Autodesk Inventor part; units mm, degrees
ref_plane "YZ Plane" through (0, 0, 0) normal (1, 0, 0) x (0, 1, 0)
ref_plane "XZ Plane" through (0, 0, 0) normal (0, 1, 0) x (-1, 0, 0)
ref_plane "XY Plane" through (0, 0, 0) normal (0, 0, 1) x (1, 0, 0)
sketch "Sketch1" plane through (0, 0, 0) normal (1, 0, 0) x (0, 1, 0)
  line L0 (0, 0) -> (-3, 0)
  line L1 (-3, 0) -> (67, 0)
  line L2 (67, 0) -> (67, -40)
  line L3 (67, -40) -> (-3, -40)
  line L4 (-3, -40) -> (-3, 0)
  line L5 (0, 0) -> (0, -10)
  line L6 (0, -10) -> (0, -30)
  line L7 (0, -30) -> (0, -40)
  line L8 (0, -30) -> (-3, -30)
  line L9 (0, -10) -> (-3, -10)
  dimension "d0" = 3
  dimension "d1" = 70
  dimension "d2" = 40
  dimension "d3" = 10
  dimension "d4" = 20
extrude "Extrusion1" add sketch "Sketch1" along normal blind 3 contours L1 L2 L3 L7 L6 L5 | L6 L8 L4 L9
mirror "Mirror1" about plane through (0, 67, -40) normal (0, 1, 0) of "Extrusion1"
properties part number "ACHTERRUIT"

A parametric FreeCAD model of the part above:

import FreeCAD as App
import Part
import Sketcher

V = App.Vector
Q = App.Units.Quantity

doc = App.newDocument("Part")
params = doc.addObject("Spreadsheet::Sheet", "Params")
for row, (alias, value) in enumerate([
    ("sketch1_width", "3 mm"),
    ("sketch1_height", "10 mm"),
    ("sketch1_height2", "20 mm"),
    ("pad1_length", "3 mm"),
], start=1):
    params.set(f"A{row}", alias)
    params.set(f"B{row}", "=" + value)
    params.setAlias(f"B{row}", alias)

body = doc.addObject("PartDesign::Body", "Body")

# Sketch on YZ plane
sketch1 = body.newObject("Sketcher::SketchObject", "Sketch")
sketch1.AttachmentSupport = (doc.getObject("YZ_Plane"), [""])
sketch1.MapMode = "FlatFace"
sketch1.addGeometry(Part.LineSegment(V(67, 0, 0), V(0, 0, 0)), False)
sketch1.addGeometry(Part.LineSegment(V(0, 0, 0), V(0, -10, 0)), False)
sketch1.addGeometry(Part.LineSegment(V(0, -10, 0), V(-3, -10, 0)), False)
sketch1.addGeometry(Part.LineSegment(V(-3, -10, 0), V(-3, -30, 0)), False)
sketch1.addGeometry(Part.LineSegment(V(-3, -30, 0), V(0, -30, 0)), False)
sketch1.addGeometry(Part.LineSegment(V(0, -30, 0), V(0, -40, 0)), False)
sketch1.addGeometry(Part.LineSegment(V(0, -40, 0), V(67, -40, 0)), False)
sketch1.addGeometry(Part.LineSegment(V(67, -40, 0), V(67, 0, 0)), False)
sketch1.addConstraint(Sketcher.Constraint("Coincident", 0, 2, 1, 1))
sketch1.addConstraint(Sketcher.Constraint("Coincident", 1, 2, 2, 1))
sketch1.addConstraint(Sketcher.Constraint("Coincident", 2, 2, 3, 1))
sketch1.addConstraint(Sketcher.Constraint("Coincident", 3, 2, 4, 1))
sketch1.addConstraint(Sketcher.Constraint("Coincident", 4, 2, 5, 1))
sketch1.addConstraint(Sketcher.Constraint("Coincident", 5, 2, 6, 1))
sketch1.addConstraint(Sketcher.Constraint("Coincident", 6, 2, 7, 1))
sketch1.addConstraint(Sketcher.Constraint("Coincident", 7, 2, 0, 1))
sketch1.addConstraint(Sketcher.Constraint("Horizontal", 0))
sketch1.addConstraint(Sketcher.Constraint("Vertical", 1))
sketch1.addConstraint(Sketcher.Constraint("Horizontal", 2))
sketch1.addConstraint(Sketcher.Constraint("Vertical", 3))
sketch1.addConstraint(Sketcher.Constraint("Horizontal", 4))
sketch1.addConstraint(Sketcher.Constraint("Vertical", 5))
sketch1.addConstraint(Sketcher.Constraint("Horizontal", 6))
sketch1.addConstraint(Sketcher.Constraint("Vertical", 7))
sketch1.addConstraint(Sketcher.Constraint("Coincident", 0, 2, -1, 1))
sketch1.addConstraint(Sketcher.Constraint("PointOnObject", 4, 2, -2))
sketch1.addConstraint(Sketcher.Constraint("Equal", 1, 5))
sketch1.addConstraint(Sketcher.Constraint("DistanceX", 2, 2, 2, 1, Q("3 mm")))
sketch1.addConstraint(Sketcher.Constraint("DistanceY", 1, 2, 1, 1, Q("10 mm")))
sketch1.addConstraint(Sketcher.Constraint("DistanceY", 3, 2, 3, 1, Q("20 mm")))
sketch1.addConstraint(Sketcher.Constraint("DistanceX", 3, 2, 6, 2, Q("70 mm")))
sketch1.setExpression("Constraints[19]", "Params.sketch1_width")
sketch1.setExpression("Constraints[20]", "Params.sketch1_height")
sketch1.setExpression("Constraints[21]", "Params.sketch1_height2")
pad1 = body.newObject("PartDesign::Pad", "Pad")
pad1.Profile = sketch1
pad1.setExpression("Length", "Params.pad1_length")
doc.recompute()

datumplane = body.newObject("PartDesign::Plane", "DatumPlane")
datumplane.AttachmentSupport = (doc.getObject("XZ_Plane"), [""])
datumplane.MapMode = "FlatFace"
datumplane.AttachmentOffset = App.Placement(V(0, 0, -67), App.Rotation())
mirrored = body.newObject("PartDesign::Mirrored", "Mirrored")
mirrored.Originals = [pad1]
mirrored.MirrorPlane = (datumplane, [""])
body.Tip = mirrored

doc.recompute()
